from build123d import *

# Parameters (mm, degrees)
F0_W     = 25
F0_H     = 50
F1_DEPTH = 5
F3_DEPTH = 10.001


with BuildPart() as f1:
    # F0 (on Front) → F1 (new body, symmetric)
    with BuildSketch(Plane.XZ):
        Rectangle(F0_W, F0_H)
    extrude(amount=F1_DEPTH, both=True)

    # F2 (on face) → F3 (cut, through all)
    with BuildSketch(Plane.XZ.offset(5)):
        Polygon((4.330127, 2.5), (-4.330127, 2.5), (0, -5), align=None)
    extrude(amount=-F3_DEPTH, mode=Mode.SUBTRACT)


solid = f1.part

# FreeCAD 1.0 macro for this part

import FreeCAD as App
import Part
import Sketcher
from FreeCAD import Vector
Q = App.Units.Quantity

doc = App.newDocument("Part")
params = doc.addObject("Spreadsheet::Sheet", "Params")
for row, (alias, value) in enumerate([
    ("sketch1_width", "25 mm"),
    ("sketch1_height", "50 mm"),
    ("pad1_length", "10 mm"),
], start=1):
    params.set(f"A{row}", alias)
    params.set(f"B{row}", "=" + value)
    params.setAlias(f"B{row}", alias)

body = doc.addObject("PartDesign::Body", "Body")

# Sketch on XZ plane
sketch1 = body.newObject("Sketcher::SketchObject", "Sketch")
sketch1.AttachmentSupport = (doc.getObject("XZ_Plane"), [""])
sketch1.MapMode = "FlatFace"
sketch1.addGeometry([
    Part.LineSegment(Vector(-12.5, 25, 0), Vector(-12.5, -25, 0)),
    Part.LineSegment(Vector(-12.5, -25, 0), Vector(12.5, -25, 0)),
    Part.LineSegment(Vector(12.5, -25, 0), Vector(12.5, 25, 0)),
    Part.LineSegment(Vector(12.5, 25, 0), Vector(-12.5, 25, 0)),
], False)
sketch1.addConstraint([
    Sketcher.Constraint("Coincident", 0, 2, 1, 1),
    Sketcher.Constraint("Coincident", 1, 2, 2, 1),
    Sketcher.Constraint("Coincident", 2, 2, 3, 1),
    Sketcher.Constraint("Coincident", 3, 2, 0, 1),
    Sketcher.Constraint("Vertical", 0),
    Sketcher.Constraint("Horizontal", 1),
    Sketcher.Constraint("Vertical", 2),
    Sketcher.Constraint("Horizontal", 3),
    Sketcher.Constraint("Symmetric", 0, 2, 2, 2, -1, 1),
    Sketcher.Constraint("DistanceX", 1, 1, 1, 2, 25.0),
    Sketcher.Constraint("DistanceY", 0, 2, 0, 1, 50.0),
])
sketch1.setExpression("Constraints[9]", "Params.sketch1_width")
sketch1.setExpression("Constraints[10]", "Params.sketch1_height")
pad1 = body.newObject("PartDesign::Pad", "Pad")
pad1.Profile = sketch1
pad1.setExpression("Length", "Params.pad1_length")
pad1.Midplane = True

# Sketch on XZ plane
sketch2 = body.newObject("Sketcher::SketchObject", "Sketch001")
sketch2.AttachmentSupport = (doc.getObject("XZ_Plane"), [""])
sketch2.MapMode = "FlatFace"
sketch2.AttachmentOffset = App.Placement(Vector(0, 0, 5), App.Rotation())
sketch2.addGeometry([
    Part.LineSegment(Vector(4.330127, 2.5, 0), Vector(-4.330127, 2.5, 0)),
    Part.LineSegment(Vector(-4.330127, 2.5, 0), Vector(0, -5, 0)),
    Part.LineSegment(Vector(0, -5, 0), Vector(4.330127, 2.5, 0)),
], False)
sketch2.addConstraint([
    Sketcher.Constraint("Coincident", 0, 2, 1, 1),
    Sketcher.Constraint("Coincident", 1, 2, 2, 1),
    Sketcher.Constraint("Coincident", 2, 2, 0, 1),
    Sketcher.Constraint("Horizontal", 0),
    Sketcher.Constraint("PointOnObject", 1, 2, -2),
    Sketcher.Constraint("Equal", 1, 2),
    Sketcher.Constraint("Angle", 1, Q("-60 deg")),
    Sketcher.Constraint("DistanceY", 1, 2, -1, 1, 5.0),
    Sketcher.Constraint("DistanceY", -1, 1, 0, 2, 2.5),
])
pocket1 = body.newObject("PartDesign::Pocket", "Pocket")
pocket1.Profile = sketch2
pocket1.Type = "ThroughAll"

doc.recompute()
